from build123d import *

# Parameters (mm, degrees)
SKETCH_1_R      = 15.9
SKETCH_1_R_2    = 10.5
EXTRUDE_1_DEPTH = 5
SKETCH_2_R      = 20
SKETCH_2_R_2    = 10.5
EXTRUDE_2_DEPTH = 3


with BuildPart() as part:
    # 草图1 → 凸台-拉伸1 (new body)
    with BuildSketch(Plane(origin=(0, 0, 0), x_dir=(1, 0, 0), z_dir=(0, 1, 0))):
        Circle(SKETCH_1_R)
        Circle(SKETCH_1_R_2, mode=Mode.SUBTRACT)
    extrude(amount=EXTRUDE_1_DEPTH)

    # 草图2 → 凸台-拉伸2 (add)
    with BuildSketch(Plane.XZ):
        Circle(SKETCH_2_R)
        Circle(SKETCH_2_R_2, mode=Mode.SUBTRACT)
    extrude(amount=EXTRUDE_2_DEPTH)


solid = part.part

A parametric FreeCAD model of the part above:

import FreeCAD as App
import Part
import Sketcher
from FreeCAD import Vector
Q = App.Units.Quantity

doc = App.newDocument("Part")
body = doc.addObject("PartDesign::Body", "Body")

sketch1 = body.newObject("Sketcher::SketchObject", "Sketch")
sketch1.AttachmentSupport = (doc.getObject("XZ_Plane"), [""])
sketch1.MapMode = "FlatFace"
sketch1.addGeometry([
    Part.Circle(Vector(0, 0, 0), Vector(0, 0, 1), 15.9),
    Part.Circle(Vector(0, 0, 0), Vector(0, 0, 1), 10.5),
], False)
sketch1.addConstraint([
    Sketcher.Constraint("Coincident", 0, 3, -1, 1),
    Sketcher.Constraint("Coincident", 1, 3, -1, 1),
    Sketcher.Constraint("Diameter", 1, Q("21 mm")),
    Sketcher.Constraint("Diameter", 0, Q("31.8 mm")),
])
pad1 = body.newObject("PartDesign::Pad", "Pad")
pad1.Profile = sketch1
pad1.Length = 5
pad1.Reversed = True

sketch2 = body.newObject("Sketcher::SketchObject", "Sketch001")
sketch2.AttachmentSupport = (doc.getObject("XZ_Plane"), [""])
sketch2.MapMode = "FlatFace"
sketch2.addGeometry([
    Part.Circle(Vector(0, 0, 0), Vector(0, 0, 1), 20),
    Part.Circle(Vector(0, 0, 0), Vector(0, 0, 1), 10.5),
], False)
sketch2.addConstraint([
    Sketcher.Constraint("Coincident", 0, 3, -1, 1),
    Sketcher.Constraint("Coincident", 1, 3, -1, 1),
    Sketcher.Constraint("Diameter", 0, Q("40 mm")),
    Sketcher.Constraint("Diameter", 1, Q("21 mm")),
])
pad2 = body.newObject("PartDesign::Pad", "Pad001")
pad2.Profile = sketch2
pad2.Length = 3

doc.recompute()
